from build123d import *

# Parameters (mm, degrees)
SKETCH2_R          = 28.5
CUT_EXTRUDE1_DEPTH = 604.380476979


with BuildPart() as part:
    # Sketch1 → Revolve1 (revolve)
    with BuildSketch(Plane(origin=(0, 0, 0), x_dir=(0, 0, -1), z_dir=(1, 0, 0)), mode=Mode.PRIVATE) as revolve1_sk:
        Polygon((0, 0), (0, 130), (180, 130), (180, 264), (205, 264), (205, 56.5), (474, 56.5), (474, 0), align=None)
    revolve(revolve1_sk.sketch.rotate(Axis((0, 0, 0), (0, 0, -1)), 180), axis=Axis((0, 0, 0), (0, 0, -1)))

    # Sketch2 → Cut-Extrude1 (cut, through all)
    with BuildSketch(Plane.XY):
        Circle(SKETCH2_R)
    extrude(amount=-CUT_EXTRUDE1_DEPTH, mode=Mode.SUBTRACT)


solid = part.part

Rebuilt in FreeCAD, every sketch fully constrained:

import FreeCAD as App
import Part
import Sketcher
Q = App.Units.Quantity


def add_polygon(sketch, points):
    """Adds a closed chain of lines whose ends are joined by coincident constraints."""
    first, n = sketch.GeometryCount, len(points)
    for a, b in zip(points, points[1:] + points[:1]):
        sketch.addGeometry(Part.LineSegment(App.Vector(*a, 0), App.Vector(*b, 0)), False)
    for i in range(n):
        sketch.addConstraint(Sketcher.Constraint("Coincident", first + i, 2, first + (i + 1) % n, 1))

doc = App.newDocument("Part")
params = doc.addObject("Spreadsheet::Sheet", "Params")
for row, (alias, value) in enumerate([
    ("sketch1_width", "130 mm"),
    ("sketch1_width2", "134 mm"),
    ("sketch1_height", "474 mm"),
    ("sketch1_height2", "269 mm"),
    ("sketch1_height3", "25 mm"),
    ("revolution_angle", "360 deg"),
    ("sketch2_diameter", "57 mm"),
], start=1):
    params.set(f"A{row}", alias)
    params.set(f"B{row}", "=" + value)
    params.setAlias(f"B{row}", alias)

body = doc.addObject("PartDesign::Body", "Body")

# Sketch on YZ plane
sketch1 = doc.addObject("Sketcher::SketchObject", "Sketch")
body.addObject(sketch1)
sketch1.AttachmentSupport = (doc.YZ_Plane, [""])
sketch1.MapMode = "FlatFace"
add_polygon(sketch1, [(130, 0), (0, 0), (0, -474), (56.5, -474), (56.5, -205), (264, -205), (264, -180), (130, -180)])  # lines 0-7
sketch1.addConstraint([
    Sketcher.Constraint("Horizontal", 0),
    Sketcher.Constraint("Vertical", 1),
    Sketcher.Constraint("Horizontal", 2),
    Sketcher.Constraint("Vertical", 3),
    Sketcher.Constraint("Horizontal", 4),
    Sketcher.Constraint("Vertical", 5),
    Sketcher.Constraint("Horizontal", 6),
    Sketcher.Constraint("Vertical", 7),
    Sketcher.Constraint("Coincident", 0, 2, -1, 1),
    Sketcher.Constraint("DistanceX", 0, 2, 0, 1, Q("130 mm")),
    Sketcher.Constraint("DistanceX", 6, 2, 6, 1, Q("134 mm")),
    Sketcher.Constraint("DistanceY", 1, 2, 1, 1, Q("474 mm")),
    Sketcher.Constraint("DistanceY", 3, 1, 3, 2, Q("269 mm")),
    Sketcher.Constraint("DistanceY", 5, 1, 5, 2, Q("25 mm")),
    Sketcher.Constraint("DistanceX", 2, 1, 2, 2, Q("56.5 mm")),
])
sketch1.setExpression("Constraints[17]", "Params.sketch1_width")
sketch1.setExpression("Constraints[18]", "Params.sketch1_width2")
sketch1.setExpression("Constraints[19]", "Params.sketch1_height")
sketch1.setExpression("Constraints[20]", "Params.sketch1_height2")
sketch1.setExpression("Constraints[21]", "Params.sketch1_height3")
revolution = doc.addObject("PartDesign::Revolution", "Revolution")
body.addObject(revolution)
revolution.Profile = sketch1
revolution.ReferenceAxis = (sketch1, ["V_Axis"])
revolution.setExpression("Angle", "Params.revolution_angle")

# Sketch on XY plane
sketch2 = doc.addObject("Sketcher::SketchObject", "Sketch001")
body.addObject(sketch2)
sketch2.AttachmentSupport = (doc.XY_Plane, [""])
sketch2.MapMode = "FlatFace"
sketch2.addGeometry(Part.Circle(App.Vector(0, 0, 0), App.Vector(0, 0, 1), 28.5), False)
sketch2.addConstraint([
    Sketcher.Constraint("Coincident", 0, 3, -1, 1),
    Sketcher.Constraint("Diameter", 0, Q("57 mm")),
])
sketch2.setExpression("Constraints[1]", "Params.sketch2_diameter")
pocket1 = doc.addObject("PartDesign::Pocket", "Pocket")
body.addObject(pocket1)
pocket1.Profile = sketch2
pocket1.Type = "ThroughAll"

doc.recompute()
